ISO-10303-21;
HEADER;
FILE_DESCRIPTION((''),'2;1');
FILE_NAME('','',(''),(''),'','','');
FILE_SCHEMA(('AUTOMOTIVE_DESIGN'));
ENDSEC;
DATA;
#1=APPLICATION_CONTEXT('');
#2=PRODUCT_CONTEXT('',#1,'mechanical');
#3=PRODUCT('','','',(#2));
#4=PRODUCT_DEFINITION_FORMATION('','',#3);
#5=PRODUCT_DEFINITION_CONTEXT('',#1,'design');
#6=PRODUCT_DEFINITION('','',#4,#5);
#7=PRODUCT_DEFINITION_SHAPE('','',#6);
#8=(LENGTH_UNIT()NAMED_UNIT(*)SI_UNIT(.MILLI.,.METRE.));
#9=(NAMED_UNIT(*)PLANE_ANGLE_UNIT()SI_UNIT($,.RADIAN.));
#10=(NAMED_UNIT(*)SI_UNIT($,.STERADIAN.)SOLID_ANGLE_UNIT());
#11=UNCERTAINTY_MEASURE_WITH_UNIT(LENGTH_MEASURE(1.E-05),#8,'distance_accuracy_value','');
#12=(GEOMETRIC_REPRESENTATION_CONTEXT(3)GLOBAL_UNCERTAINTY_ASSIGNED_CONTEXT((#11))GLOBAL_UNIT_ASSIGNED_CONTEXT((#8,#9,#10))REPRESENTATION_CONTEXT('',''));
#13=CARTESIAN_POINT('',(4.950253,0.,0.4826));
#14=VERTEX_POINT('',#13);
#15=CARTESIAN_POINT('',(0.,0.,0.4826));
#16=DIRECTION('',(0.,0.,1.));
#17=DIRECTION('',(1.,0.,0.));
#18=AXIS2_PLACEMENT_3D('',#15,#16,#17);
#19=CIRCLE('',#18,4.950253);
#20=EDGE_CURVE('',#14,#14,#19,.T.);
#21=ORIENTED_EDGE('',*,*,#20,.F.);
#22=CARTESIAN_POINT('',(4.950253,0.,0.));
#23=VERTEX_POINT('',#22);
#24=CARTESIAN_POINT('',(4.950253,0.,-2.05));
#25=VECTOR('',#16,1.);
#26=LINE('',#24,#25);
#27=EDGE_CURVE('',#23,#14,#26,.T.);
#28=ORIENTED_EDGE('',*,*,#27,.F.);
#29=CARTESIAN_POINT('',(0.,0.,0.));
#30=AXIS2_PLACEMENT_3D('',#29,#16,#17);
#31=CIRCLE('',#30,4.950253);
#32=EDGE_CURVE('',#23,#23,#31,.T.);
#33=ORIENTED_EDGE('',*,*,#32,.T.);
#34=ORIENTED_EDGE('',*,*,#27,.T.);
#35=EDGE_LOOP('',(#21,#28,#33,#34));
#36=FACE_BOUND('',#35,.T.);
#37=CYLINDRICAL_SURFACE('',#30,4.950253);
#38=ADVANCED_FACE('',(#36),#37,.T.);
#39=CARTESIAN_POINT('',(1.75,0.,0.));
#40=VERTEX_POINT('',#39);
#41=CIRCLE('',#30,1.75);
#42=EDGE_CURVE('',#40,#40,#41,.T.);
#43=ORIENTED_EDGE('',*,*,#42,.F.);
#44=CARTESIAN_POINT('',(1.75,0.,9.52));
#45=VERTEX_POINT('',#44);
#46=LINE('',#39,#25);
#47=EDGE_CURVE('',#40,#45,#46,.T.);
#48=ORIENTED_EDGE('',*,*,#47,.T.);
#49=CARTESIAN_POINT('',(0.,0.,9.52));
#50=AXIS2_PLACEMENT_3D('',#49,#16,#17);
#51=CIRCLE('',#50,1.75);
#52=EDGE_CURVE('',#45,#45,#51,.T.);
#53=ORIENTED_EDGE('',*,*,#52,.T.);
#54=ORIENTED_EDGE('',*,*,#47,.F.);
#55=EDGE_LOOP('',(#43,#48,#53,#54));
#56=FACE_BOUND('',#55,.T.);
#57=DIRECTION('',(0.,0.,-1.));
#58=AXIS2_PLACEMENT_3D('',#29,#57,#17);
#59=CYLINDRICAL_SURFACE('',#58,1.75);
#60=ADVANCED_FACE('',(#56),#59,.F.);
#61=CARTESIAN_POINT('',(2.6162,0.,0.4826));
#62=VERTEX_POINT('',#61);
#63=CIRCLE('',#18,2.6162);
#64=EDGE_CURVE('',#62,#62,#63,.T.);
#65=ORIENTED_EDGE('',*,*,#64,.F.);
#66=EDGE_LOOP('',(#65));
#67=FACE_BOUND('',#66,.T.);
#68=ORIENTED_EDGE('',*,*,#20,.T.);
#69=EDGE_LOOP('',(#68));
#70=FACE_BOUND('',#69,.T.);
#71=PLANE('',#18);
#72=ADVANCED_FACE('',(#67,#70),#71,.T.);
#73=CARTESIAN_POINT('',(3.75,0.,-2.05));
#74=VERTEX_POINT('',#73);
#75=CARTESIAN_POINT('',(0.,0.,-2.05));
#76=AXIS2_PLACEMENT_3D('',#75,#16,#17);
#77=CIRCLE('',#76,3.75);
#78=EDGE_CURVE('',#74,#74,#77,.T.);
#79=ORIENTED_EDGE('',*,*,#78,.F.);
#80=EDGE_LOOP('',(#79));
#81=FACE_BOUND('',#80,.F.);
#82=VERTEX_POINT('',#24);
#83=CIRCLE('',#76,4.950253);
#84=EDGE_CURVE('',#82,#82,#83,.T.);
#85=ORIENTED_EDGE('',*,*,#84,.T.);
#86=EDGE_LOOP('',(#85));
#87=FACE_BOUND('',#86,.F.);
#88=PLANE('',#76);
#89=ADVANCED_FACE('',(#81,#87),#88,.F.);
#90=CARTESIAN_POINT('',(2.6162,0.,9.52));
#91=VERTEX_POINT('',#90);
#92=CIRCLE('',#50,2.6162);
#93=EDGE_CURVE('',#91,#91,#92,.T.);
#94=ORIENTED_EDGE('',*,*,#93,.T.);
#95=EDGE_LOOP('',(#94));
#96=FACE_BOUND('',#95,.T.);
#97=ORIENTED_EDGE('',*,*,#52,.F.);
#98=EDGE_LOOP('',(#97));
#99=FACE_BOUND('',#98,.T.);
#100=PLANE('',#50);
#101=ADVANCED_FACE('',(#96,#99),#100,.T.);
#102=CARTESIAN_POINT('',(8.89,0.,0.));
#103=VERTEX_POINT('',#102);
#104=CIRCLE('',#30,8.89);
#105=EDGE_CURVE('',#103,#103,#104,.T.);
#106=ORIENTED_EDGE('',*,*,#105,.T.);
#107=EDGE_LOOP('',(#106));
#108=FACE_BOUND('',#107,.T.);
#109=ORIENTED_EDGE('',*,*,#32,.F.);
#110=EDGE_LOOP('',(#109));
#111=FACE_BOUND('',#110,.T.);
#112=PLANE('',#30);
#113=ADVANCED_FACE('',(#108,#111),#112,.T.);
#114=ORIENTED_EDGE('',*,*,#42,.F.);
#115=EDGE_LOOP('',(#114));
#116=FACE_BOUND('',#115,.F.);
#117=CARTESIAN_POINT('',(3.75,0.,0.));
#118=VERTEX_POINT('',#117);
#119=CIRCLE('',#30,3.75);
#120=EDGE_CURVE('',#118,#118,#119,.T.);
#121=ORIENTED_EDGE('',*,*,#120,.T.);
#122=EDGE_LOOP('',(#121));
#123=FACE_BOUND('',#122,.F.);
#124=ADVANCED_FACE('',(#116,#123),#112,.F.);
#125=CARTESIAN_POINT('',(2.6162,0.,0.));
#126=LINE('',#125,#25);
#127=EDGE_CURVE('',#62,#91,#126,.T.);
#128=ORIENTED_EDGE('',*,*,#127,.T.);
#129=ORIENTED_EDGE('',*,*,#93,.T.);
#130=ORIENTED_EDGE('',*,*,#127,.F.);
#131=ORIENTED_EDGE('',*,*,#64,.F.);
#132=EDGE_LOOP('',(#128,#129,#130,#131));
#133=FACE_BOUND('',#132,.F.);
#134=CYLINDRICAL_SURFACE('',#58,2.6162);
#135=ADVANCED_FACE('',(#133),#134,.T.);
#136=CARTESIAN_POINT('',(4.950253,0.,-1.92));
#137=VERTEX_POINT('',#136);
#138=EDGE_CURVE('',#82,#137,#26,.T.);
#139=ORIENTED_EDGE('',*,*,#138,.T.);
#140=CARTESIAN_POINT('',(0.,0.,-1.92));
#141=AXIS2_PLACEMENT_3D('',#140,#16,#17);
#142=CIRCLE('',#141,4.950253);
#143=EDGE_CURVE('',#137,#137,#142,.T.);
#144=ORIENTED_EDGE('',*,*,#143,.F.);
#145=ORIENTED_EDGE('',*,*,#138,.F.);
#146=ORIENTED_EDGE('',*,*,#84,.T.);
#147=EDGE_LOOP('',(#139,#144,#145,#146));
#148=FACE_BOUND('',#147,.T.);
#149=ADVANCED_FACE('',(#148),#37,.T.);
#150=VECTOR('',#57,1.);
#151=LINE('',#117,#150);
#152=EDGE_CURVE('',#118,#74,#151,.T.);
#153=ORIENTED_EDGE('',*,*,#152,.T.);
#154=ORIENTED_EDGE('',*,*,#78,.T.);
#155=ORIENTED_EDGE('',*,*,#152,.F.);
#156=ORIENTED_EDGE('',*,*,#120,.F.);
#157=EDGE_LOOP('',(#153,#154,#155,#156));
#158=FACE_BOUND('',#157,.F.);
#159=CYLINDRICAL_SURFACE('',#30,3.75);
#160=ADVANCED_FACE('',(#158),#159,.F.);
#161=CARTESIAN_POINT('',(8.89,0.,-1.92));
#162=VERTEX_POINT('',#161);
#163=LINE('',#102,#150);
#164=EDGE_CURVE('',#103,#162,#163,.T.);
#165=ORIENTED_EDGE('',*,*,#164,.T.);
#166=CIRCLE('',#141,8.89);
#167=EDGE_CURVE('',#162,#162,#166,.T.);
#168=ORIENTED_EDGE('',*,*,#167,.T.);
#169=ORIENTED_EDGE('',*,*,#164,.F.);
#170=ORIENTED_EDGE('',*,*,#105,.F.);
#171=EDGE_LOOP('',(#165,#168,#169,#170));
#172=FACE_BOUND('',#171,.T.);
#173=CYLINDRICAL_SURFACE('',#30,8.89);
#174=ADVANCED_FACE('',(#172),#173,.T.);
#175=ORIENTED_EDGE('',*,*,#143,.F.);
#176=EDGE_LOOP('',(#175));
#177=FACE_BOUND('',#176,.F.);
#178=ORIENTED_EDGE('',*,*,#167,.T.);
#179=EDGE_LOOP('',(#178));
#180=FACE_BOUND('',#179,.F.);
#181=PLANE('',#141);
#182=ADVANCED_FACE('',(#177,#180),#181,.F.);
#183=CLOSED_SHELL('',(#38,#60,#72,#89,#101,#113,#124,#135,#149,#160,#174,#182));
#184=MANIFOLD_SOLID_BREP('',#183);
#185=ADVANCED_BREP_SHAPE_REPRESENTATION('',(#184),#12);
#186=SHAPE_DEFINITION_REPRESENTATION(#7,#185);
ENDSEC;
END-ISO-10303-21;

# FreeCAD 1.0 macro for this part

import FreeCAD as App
import Part
import Sketcher
Q = App.Units.Quantity

doc = App.newDocument("Part")
body = doc.addObject("PartDesign::Body", "Body")

# Sketch on XY plane
sketch1 = body.newObject("Sketcher::SketchObject", "Sketch")
sketch1.AttachmentSupport = (doc.getObject("XY_Plane"), [""])
sketch1.MapMode = "FlatFace"
sketch1.addGeometry([
    Part.Circle(App.Vector(0, 0, 0), App.Vector(0, 0, 1), 2.6),
    Part.Circle(App.Vector(0, 0, 0), App.Vector(0, 0, 1), 1.8),
], False)
sketch1.addConstraint([
    Sketcher.Constraint("Coincident", 0, 3, -1, 1),
    Sketcher.Constraint("Coincident", 1, 3, -1, 1),
    Sketcher.Constraint("Diameter", 0, Q("0.206 in")),
    Sketcher.Constraint("Diameter", 1, Q("3.5 mm")),
])
pad1 = body.newObject("PartDesign::Pad", "Pad")
pad1.Profile = sketch1
pad1.Length = 9.52

# Sketch on XY plane
sketch2 = body.newObject("Sketcher::SketchObject", "Sketch001")
sketch2.AttachmentSupport = (doc.getObject("XY_Plane"), [""])
sketch2.MapMode = "FlatFace"
sketch2.addGeometry([
    Part.Circle(App.Vector(0, 0, 0), App.Vector(0, 0, 1), 5),
    Part.Circle(App.Vector(0, 0, 0), App.Vector(0, 0, 1), 2.6),
], False)
sketch2.addConstraint([
    Sketcher.Constraint("Coincident", 0, 3, -1, 1),
    Sketcher.Constraint("Coincident", 1, 3, -1, 1),
    Sketcher.Constraint("Diameter", 1, Q("0.206 in")),
    Sketcher.Constraint("Diameter", 0, Q("9.900506 mm")),
])
pad2 = body.newObject("PartDesign::Pad", "Pad001")
pad2.Profile = sketch2
pad2.Length = Q("0.019 in")

# Sketch on XY plane
sketch3 = body.newObject("Sketcher::SketchObject", "Sketch002")
sketch3.AttachmentSupport = (doc.getObject("XY_Plane"), [""])
sketch3.MapMode = "FlatFace"
sketch3.addGeometry([
    Part.Circle(App.Vector(0, 0, 0), App.Vector(0, 0, 1), 5),
    Part.Circle(App.Vector(0, 0, 0), App.Vector(0, 0, 1), 3.8),
], False)
sketch3.addConstraint([
    Sketcher.Constraint("Coincident", 0, 3, -1, 1),
    Sketcher.Constraint("Coincident", 1, 3, -1, 1),
    Sketcher.Constraint("Diameter", 1, Q("7.5 mm")),
    Sketcher.Constraint("Diameter", 0, Q("9.900506 mm")),
])
pad3 = body.newObject("PartDesign::Pad", "Pad002")
pad3.Profile = sketch3
pad3.Length = 2.05
pad3.Reversed = True

# Sketch on XY plane
sketch4 = body.newObject("Sketcher::SketchObject", "Sketch003")
sketch4.AttachmentSupport = (doc.getObject("XY_Plane"), [""])
sketch4.MapMode = "FlatFace"
sketch4.addGeometry([
    Part.Circle(App.Vector(0, 0, 0), App.Vector(0, 0, 1), 8.9),
    Part.Circle(App.Vector(0, 0, 0), App.Vector(0, 0, 1), 5),
], False)
sketch4.addConstraint([
    Sketcher.Constraint("Coincident", 0, 3, -1, 1),
    Sketcher.Constraint("Coincident", 1, 3, -1, 1),
    Sketcher.Constraint("Diameter", 0, Q("0.7 in")),
    Sketcher.Constraint("Diameter", 1, Q("9.900506 mm")),
])
pad4 = body.newObject("PartDesign::Pad", "Pad003")
pad4.Profile = sketch4
pad4.Length = 1.92
pad4.Reversed = True

doc.recompute()
